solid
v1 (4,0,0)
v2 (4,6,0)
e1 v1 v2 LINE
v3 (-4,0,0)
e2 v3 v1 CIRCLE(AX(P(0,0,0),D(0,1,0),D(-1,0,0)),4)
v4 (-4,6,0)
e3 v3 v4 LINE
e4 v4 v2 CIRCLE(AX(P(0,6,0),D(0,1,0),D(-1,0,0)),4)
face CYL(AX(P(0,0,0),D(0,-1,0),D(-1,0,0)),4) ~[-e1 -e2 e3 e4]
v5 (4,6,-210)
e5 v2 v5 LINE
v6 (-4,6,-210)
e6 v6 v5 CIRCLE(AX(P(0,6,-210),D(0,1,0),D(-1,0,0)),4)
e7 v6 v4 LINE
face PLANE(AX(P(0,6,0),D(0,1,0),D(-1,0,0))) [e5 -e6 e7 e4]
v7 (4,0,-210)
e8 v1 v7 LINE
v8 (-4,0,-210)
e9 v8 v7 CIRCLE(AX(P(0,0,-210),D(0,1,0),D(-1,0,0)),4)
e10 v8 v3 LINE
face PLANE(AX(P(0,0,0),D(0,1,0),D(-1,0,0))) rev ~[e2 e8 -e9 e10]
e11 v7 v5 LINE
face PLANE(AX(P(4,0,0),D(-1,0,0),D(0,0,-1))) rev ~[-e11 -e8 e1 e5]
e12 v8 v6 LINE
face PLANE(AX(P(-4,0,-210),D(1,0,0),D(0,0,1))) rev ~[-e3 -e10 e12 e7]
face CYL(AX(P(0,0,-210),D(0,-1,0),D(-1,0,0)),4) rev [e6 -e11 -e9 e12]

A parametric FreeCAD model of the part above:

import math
import FreeCAD as App
import Part
import Sketcher
from FreeCAD import Vector
Q = App.Units.Quantity

doc = App.newDocument("Part")
body = doc.addObject("PartDesign::Body", "Body")

sketch1 = doc.addObject("Sketcher::SketchObject", "Sketch")
body.addObject(sketch1)
sketch1.AttachmentSupport = (doc.XZ_Plane, [""])
sketch1.MapMode = "FlatFace"
sketch1.addGeometry(Part.ArcOfCircle(Part.Circle(Vector(0, 0, 0), Vector(0, 0, 1), 4), math.radians(0), math.radians(180)), False)
sketch1.addGeometry(Part.LineSegment(Vector(4, 0, 0), Vector(4, -210, 0)), False)
sketch1.addGeometry(Part.ArcOfCircle(Part.Circle(Vector(0, -210, 0), Vector(0, 0, 1), 4), math.radians(0), math.radians(180)), False)
sketch1.addGeometry(Part.LineSegment(Vector(-4, -210, 0), Vector(-4, 0, 0)), False)
sketch1.addConstraint(Sketcher.Constraint("Tangent", 0, 1, 1, 1))
sketch1.addConstraint(Sketcher.Constraint("Tangent", 1, 2, 2, 1))
sketch1.addConstraint(Sketcher.Constraint("Tangent", 2, 2, 3, 1))
sketch1.addConstraint(Sketcher.Constraint("Tangent", 3, 2, 0, 2))
sketch1.addConstraint(Sketcher.Constraint("Vertical", 1))
sketch1.addConstraint(Sketcher.Constraint("Vertical", 3))
sketch1.addConstraint(Sketcher.Constraint("Coincident", 0, 3, -1, 1))
sketch1.addConstraint(Sketcher.Constraint("Radius", 0, Q("4 mm")))
sketch1.addConstraint(Sketcher.Constraint("DistanceY", 1, 2, 1, 1, Q("210 mm")))
pad1 = doc.addObject("PartDesign::Pad", "Pad")
body.addObject(pad1)
pad1.Profile = sketch1
pad1.Length = 6
pad1.Reversed = True

doc.recompute()
